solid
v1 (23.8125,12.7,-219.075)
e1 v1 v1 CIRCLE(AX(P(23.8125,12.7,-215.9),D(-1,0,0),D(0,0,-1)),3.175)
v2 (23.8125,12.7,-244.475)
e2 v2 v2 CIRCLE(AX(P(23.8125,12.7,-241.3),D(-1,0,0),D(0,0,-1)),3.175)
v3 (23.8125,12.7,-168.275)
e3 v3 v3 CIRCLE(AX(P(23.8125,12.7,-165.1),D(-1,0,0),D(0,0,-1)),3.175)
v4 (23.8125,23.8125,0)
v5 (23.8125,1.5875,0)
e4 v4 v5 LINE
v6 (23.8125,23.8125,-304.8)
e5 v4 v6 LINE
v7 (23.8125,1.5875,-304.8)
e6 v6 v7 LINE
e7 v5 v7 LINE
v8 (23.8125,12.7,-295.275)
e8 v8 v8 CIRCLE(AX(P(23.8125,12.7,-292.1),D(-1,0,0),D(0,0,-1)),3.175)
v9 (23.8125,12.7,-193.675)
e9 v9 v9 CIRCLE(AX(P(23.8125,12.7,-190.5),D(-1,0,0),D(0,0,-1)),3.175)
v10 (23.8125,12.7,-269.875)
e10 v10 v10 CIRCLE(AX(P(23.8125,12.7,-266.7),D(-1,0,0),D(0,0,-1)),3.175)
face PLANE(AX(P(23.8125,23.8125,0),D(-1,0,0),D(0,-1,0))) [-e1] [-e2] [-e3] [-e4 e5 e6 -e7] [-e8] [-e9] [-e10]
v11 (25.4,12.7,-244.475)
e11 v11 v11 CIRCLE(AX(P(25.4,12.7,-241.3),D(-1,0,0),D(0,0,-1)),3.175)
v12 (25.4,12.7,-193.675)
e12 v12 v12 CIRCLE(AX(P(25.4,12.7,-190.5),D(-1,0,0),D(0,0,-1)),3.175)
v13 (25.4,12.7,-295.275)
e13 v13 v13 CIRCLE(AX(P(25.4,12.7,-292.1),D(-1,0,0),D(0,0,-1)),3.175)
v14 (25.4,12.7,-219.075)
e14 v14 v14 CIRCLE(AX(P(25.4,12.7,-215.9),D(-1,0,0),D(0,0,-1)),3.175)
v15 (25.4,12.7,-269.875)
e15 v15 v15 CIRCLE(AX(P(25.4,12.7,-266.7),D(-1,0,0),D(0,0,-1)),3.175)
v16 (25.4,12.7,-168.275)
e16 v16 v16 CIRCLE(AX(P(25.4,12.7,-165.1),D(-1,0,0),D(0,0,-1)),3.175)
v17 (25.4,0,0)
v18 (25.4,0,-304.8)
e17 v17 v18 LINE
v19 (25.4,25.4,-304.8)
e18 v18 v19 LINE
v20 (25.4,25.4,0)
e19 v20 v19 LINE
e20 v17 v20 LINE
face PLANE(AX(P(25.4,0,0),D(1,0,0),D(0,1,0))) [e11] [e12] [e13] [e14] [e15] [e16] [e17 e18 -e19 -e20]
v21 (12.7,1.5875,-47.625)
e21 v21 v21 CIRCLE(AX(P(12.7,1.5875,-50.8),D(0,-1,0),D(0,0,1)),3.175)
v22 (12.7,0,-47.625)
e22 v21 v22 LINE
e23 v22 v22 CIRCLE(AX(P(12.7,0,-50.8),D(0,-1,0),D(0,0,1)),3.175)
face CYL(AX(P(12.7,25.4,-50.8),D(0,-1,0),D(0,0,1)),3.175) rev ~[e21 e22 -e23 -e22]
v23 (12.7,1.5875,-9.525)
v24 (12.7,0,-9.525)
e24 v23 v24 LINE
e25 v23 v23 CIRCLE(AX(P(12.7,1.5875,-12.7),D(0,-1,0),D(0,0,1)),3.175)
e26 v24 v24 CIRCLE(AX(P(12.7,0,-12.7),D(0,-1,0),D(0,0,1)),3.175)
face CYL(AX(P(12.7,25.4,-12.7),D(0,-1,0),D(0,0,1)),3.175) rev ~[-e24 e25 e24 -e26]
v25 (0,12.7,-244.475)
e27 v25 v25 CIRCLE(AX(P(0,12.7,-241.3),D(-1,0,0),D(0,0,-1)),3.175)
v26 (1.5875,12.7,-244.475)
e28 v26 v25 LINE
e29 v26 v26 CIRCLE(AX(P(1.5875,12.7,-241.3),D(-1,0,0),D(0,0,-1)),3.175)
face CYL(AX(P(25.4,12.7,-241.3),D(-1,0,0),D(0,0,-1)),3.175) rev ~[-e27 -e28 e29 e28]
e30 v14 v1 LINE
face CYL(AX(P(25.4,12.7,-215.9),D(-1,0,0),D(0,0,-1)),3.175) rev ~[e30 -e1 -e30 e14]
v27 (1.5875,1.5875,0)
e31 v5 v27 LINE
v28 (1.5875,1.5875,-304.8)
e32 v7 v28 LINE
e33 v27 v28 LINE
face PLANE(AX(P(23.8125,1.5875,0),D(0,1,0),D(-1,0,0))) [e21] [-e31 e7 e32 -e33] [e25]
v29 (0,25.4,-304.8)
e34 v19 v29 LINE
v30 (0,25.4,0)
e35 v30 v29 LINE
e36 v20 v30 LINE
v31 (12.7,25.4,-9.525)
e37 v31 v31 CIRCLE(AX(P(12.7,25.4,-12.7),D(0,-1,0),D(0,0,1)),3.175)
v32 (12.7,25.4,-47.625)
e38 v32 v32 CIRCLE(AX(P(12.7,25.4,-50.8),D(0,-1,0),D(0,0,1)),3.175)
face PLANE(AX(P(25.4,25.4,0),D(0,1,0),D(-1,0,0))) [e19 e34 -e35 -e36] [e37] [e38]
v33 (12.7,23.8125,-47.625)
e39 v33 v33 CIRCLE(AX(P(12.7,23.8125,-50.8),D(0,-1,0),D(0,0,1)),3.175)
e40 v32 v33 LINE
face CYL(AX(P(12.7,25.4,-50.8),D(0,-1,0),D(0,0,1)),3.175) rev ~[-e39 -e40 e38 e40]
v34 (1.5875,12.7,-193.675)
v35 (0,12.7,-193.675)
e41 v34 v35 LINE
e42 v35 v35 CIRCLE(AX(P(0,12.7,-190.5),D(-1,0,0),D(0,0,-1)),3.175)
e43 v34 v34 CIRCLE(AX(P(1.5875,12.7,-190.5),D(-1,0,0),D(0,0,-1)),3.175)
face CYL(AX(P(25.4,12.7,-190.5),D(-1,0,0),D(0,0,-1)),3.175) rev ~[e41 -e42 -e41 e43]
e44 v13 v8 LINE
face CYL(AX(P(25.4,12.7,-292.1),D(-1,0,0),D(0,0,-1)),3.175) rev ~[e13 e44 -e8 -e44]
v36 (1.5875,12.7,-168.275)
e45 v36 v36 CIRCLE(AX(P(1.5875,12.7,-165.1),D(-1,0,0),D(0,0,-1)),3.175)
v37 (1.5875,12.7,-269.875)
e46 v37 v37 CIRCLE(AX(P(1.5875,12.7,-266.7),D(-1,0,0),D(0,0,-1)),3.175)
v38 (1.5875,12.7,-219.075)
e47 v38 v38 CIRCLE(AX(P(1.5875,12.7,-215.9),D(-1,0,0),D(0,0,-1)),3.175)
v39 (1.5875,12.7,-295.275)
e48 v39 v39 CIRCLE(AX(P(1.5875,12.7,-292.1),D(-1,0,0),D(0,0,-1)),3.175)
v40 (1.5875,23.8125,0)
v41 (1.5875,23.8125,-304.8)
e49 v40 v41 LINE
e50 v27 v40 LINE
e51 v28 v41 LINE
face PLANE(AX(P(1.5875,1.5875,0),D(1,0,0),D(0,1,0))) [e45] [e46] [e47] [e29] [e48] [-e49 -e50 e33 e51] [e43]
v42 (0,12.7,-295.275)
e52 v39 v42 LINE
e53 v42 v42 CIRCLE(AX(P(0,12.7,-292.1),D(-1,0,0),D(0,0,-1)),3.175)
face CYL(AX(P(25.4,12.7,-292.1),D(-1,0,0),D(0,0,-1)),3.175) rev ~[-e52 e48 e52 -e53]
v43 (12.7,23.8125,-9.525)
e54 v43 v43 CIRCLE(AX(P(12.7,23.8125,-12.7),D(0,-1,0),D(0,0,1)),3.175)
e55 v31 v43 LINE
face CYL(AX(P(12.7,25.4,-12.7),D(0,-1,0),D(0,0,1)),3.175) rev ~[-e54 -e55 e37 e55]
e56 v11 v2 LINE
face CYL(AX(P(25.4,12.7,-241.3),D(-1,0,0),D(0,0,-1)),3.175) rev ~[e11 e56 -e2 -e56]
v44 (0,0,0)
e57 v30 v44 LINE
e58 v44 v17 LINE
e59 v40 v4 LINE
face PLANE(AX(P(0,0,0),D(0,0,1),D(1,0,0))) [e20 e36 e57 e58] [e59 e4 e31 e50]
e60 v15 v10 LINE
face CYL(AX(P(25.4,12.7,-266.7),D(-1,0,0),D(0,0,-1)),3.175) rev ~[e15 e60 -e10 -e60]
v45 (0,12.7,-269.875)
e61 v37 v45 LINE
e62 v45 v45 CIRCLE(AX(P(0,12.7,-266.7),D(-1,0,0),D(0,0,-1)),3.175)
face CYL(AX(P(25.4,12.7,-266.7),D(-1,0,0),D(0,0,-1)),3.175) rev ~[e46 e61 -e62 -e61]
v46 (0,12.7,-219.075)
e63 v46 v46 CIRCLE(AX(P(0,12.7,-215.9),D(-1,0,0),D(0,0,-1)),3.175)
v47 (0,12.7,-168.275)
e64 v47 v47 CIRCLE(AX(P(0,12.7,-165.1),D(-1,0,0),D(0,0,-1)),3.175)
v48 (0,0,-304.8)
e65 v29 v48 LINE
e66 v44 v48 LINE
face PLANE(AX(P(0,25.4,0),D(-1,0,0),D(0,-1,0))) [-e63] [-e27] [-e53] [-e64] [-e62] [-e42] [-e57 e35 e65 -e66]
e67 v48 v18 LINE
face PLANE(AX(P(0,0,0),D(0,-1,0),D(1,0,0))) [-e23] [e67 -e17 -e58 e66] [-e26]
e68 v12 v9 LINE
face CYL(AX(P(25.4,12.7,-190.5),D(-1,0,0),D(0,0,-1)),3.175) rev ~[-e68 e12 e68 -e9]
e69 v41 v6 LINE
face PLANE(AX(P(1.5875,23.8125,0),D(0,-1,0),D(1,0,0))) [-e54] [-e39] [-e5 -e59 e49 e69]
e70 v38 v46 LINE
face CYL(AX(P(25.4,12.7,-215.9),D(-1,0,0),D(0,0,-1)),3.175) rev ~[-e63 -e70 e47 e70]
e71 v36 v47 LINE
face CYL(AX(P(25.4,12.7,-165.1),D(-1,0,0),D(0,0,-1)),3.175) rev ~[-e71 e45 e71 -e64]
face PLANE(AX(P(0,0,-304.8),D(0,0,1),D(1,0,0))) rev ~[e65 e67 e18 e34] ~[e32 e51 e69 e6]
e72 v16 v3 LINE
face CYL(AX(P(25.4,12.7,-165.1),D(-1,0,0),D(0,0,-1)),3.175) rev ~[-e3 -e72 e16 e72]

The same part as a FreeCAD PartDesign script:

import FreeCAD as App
import Part
import Sketcher
from FreeCAD import Vector
Q = App.Units.Quantity


def add_polygon(sketch, points):
    """Adds a closed chain of lines whose ends are joined by coincident constraints."""
    first, n = sketch.GeometryCount, len(points)
    for a, b in zip(points, points[1:] + points[:1]):
        sketch.addGeometry(Part.LineSegment(App.Vector(*a, 0), App.Vector(*b, 0)), False)
    for i in range(n):
        sketch.addConstraint(Sketcher.Constraint("Coincident", first + i, 2, first + (i + 1) % n, 1))

doc = App.newDocument("Part")
body = doc.addObject("PartDesign::Body", "Body")

# Sketch on XY plane
sketch1 = doc.addObject("Sketcher::SketchObject", "Sketch")
body.addObject(sketch1)
sketch1.AttachmentSupport = (doc.XY_Plane, [""])
sketch1.MapMode = "FlatFace"
add_polygon(sketch1, [(0, 25), (0, 0), (25, 0), (25, 25)])  # lines 0-3
add_polygon(sketch1, [(2, 2), (2, 24), (24, 24), (24, 2)])  # lines 4-7
sketch1.addConstraint(Sketcher.Constraint("Vertical", 0))
sketch1.addConstraint(Sketcher.Constraint("Horizontal", 1))
sketch1.addConstraint(Sketcher.Constraint("Vertical", 2))
sketch1.addConstraint(Sketcher.Constraint("Horizontal", 3))
sketch1.addConstraint(Sketcher.Constraint("Vertical", 4))
sketch1.addConstraint(Sketcher.Constraint("Horizontal", 5))
sketch1.addConstraint(Sketcher.Constraint("Vertical", 6))
sketch1.addConstraint(Sketcher.Constraint("Horizontal", 7))
sketch1.addConstraint(Sketcher.Constraint("Coincident", 0, 2, -1, 1))
sketch1.addConstraint(Sketcher.Constraint("Equal", 3, 0))
sketch1.addConstraint(Sketcher.Constraint("Equal", 7, 4))
sketch1.addConstraint(Sketcher.Constraint("DistanceX", 1, 1, 1, 2, Q("1 in")))
sketch1.addConstraint(Sketcher.Constraint("DistanceX", -1, 1, 4, 2, Q("0.0625 in")))
sketch1.addConstraint(Sketcher.Constraint("DistanceY", -1, 1, 6, 2, Q("0.0625 in")))
sketch1.addConstraint(Sketcher.Constraint("DistanceY", 4, 2, 3, 2, Q("0.0625 in")))
pad1 = doc.addObject("PartDesign::Pad", "Pad")
body.addObject(pad1)
pad1.Profile = sketch1
pad1.Length = Q("12 in")
pad1.Reversed = True

# Sketch on XZ plane
sketch2 = doc.addObject("Sketcher::SketchObject", "Sketch001")
body.addObject(sketch2)
sketch2.AttachmentSupport = (doc.XZ_Plane, [""])
sketch2.MapMode = "FlatFace"
sketch2.AttachmentOffset = App.Placement(Vector(0, 0, -1 * 25.4), App.Rotation())
sketch2.addGeometry(Part.Circle(Vector(12.7, -12.7, 0), Vector(0, 0, 1), 3.2), False)
sketch2.addGeometry(Part.Circle(Vector(12.7, -50.8, 0), Vector(0, 0, 1), 3.2), False)
sketch2.addConstraint(Sketcher.Constraint("Equal", 0, 1))
sketch2.addConstraint(Sketcher.Constraint("Vertical", 0, 3, 1, 3))
sketch2.addConstraint(Sketcher.Constraint("Diameter", 0, Q("0.25 in")))
sketch2.addConstraint(Sketcher.Constraint("DistanceY", 1, 3, -1, 1, Q("2 in")))
sketch2.addConstraint(Sketcher.Constraint("DistanceX", -1, 1, 0, 3, Q("0.5 in")))
sketch2.addConstraint(Sketcher.Constraint("DistanceY", 0, 3, -1, 1, Q("0.5 in")))
doc.recompute()
hole = doc.addObject("PartDesign::Hole", "Hole")
body.addObject(hole)
hole.Profile = sketch2
hole.ThreadType = "None"
hole.Diameter = Q("0.25 in")
hole.DepthType = "Dimension"
hole.Depth = Q("1 in")
hole.DrillPoint = "Angled"
hole.DrillPointAngle = 118
hole.Reversed = True

# Sketch on YZ plane
sketch3 = doc.addObject("Sketcher::SketchObject", "Sketch002")
body.addObject(sketch3)
sketch3.AttachmentSupport = (doc.YZ_Plane, [""])
sketch3.MapMode = "FlatFace"
sketch3.AttachmentOffset = App.Placement(Vector(0, 0, 1 * 25.4), App.Rotation())
sketch3.addGeometry(Part.Circle(Vector(12.7, -292.1, 0), Vector(0, 0, 1), 3.2), False)
sketch3.addGeometry(Part.Circle(Vector(12.7, -266.7, 0), Vector(0, 0, 1), 3.2), False)
sketch3.addGeometry(Part.Circle(Vector(12.7, -241.3, 0), Vector(0, 0, 1), 3.2), False)
sketch3.addGeometry(Part.Circle(Vector(12.7, -215.9, 0), Vector(0, 0, 1), 3.2), False)
sketch3.addGeometry(Part.Circle(Vector(12.7, -190.5, 0), Vector(0, 0, 1), 3.2), False)
sketch3.addGeometry(Part.Circle(Vector(12.7, -165.1, 0), Vector(0, 0, 1), 3.2), False)
sketch3.addConstraint(Sketcher.Constraint("Equal", 0, 1))
sketch3.addConstraint(Sketcher.Constraint("Equal", 1, 2))
sketch3.addConstraint(Sketcher.Constraint("Equal", 2, 3))
sketch3.addConstraint(Sketcher.Constraint("Equal", 3, 4))
sketch3.addConstraint(Sketcher.Constraint("Equal", 4, 5))
sketch3.addConstraint(Sketcher.Constraint("Vertical", 0, 3, 1, 3))
sketch3.addConstraint(Sketcher.Constraint("Vertical", 1, 3, 2, 3))
sketch3.addConstraint(Sketcher.Constraint("Vertical", 2, 3, 3, 3))
sketch3.addConstraint(Sketcher.Constraint("Vertical", 3, 3, 4, 3))
sketch3.addConstraint(Sketcher.Constraint("Vertical", 4, 3, 5, 3))
sketch3.addConstraint(Sketcher.Constraint("Diameter", 0, Q("0.25 in")))
sketch3.addConstraint(Sketcher.Constraint("DistanceY", 0, 3, 1, 3, Q("1 in")))
sketch3.addConstraint(Sketcher.Constraint("DistanceY", 1, 3, 2, 3, Q("1 in")))
sketch3.addConstraint(Sketcher.Constraint("DistanceY", 2, 3, 3, 3, Q("1 in")))
sketch3.addConstraint(Sketcher.Constraint("DistanceY", 3, 3, 4, 3, Q("1 in")))
sketch3.addConstraint(Sketcher.Constraint("DistanceY", 4, 3, 5, 3, Q("1 in")))
sketch3.addConstraint(Sketcher.Constraint("DistanceX", -1, 1, 0, 3, Q("0.5 in")))
sketch3.addConstraint(Sketcher.Constraint("DistanceY", 0, 3, -1, 1, Q("11.5 in")))
doc.recompute()
hole2 = doc.addObject("PartDesign::Hole", "Hole001")
body.addObject(hole2)
hole2.Profile = sketch3
hole2.ThreadType = "None"
hole2.Diameter = Q("0.25 in")
hole2.DepthType = "Dimension"
hole2.Depth = Q("1 in")
hole2.DrillPoint = "Angled"
hole2.DrillPointAngle = 118

doc.recompute()
